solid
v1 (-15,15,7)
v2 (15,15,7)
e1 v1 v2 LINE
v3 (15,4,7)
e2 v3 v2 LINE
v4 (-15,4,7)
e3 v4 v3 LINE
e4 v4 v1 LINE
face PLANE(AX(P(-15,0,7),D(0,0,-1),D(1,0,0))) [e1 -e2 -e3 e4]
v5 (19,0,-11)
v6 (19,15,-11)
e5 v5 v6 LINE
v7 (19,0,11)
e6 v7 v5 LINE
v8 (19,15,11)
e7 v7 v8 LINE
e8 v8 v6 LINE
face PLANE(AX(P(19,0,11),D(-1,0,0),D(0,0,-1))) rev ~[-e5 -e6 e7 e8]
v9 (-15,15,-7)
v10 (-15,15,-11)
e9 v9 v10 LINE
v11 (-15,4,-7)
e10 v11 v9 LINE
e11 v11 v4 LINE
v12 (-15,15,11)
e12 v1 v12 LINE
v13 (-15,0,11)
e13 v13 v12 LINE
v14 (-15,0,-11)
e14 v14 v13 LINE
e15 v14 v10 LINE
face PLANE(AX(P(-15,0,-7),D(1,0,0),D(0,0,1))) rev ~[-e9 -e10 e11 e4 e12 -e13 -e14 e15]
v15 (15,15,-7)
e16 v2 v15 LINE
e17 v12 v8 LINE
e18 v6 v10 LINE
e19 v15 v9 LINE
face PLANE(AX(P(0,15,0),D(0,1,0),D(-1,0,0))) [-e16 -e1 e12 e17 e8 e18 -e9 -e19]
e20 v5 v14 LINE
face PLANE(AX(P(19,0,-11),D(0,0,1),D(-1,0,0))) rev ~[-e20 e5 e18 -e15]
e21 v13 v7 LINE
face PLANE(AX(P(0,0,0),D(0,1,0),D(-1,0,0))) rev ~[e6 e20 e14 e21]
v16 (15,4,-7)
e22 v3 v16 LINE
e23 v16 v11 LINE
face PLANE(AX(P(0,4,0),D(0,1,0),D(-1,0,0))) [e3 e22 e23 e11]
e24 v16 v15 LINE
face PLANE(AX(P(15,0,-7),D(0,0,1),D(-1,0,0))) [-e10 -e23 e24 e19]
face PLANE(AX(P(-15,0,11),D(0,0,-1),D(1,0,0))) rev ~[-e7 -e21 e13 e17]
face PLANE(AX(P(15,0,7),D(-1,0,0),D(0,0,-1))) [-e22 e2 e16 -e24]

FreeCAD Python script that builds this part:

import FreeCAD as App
import Part
import Sketcher

V = App.Vector
Q = App.Units.Quantity


def add_polygon(sketch, points):
    """Adds a closed chain of lines whose ends are joined by coincident constraints."""
    first, n = sketch.GeometryCount, len(points)
    for a, b in zip(points, points[1:] + points[:1]):
        sketch.addGeometry(Part.LineSegment(App.Vector(*a, 0), App.Vector(*b, 0)), False)
    for i in range(n):
        sketch.addConstraint(Sketcher.Constraint("Coincident", first + i, 2, first + (i + 1) % n, 1))

doc = App.newDocument("Part")
params = doc.addObject("Spreadsheet::Sheet", "Params")
for row, (alias, value) in enumerate([
    ("sketch1_width", "30 mm"),
    ("sketch1_height", "14 mm"),
    ("sketch1_height2", "4 mm"),
    ("pad1_length", "15 mm"),
    ("sketch2_width", "30 mm"),
    ("sketch2_height", "14 mm"),
    ("pad2_length", "4 mm"),
], start=1):
    params.set(f"A{row}", alias)
    params.set(f"B{row}", "=" + value)
    params.setAlias(f"B{row}", alias)

body = doc.addObject("PartDesign::Body", "Body")

# Sketch on XZ plane
sketch1 = body.newObject("Sketcher::SketchObject", "Sketch")
sketch1.AttachmentSupport = (doc.getObject("XZ_Plane"), [""])
sketch1.MapMode = "FlatFace"
add_polygon(sketch1, [(15, -7), (15, 7), (-15, 7), (-15, 11), (19, 11), (19, -11), (-15, -11), (-15, -7)])  # lines 0-7
sketch1.addConstraint([
    Sketcher.Constraint("Vertical", 0),
    Sketcher.Constraint("Horizontal", 1),
    Sketcher.Constraint("Vertical", 2),
    Sketcher.Constraint("Horizontal", 3),
    Sketcher.Constraint("Vertical", 4),
    Sketcher.Constraint("Horizontal", 5),
    Sketcher.Constraint("Vertical", 6),
    Sketcher.Constraint("Horizontal", 7),
    Sketcher.Constraint("Symmetric", 0, 2, 6, 2, -1, 1),
    Sketcher.Constraint("Symmetric", 2, 2, 5, 2, -1),
    Sketcher.Constraint("DistanceX", 1, 2, 1, 1, Q("30 mm")),
    Sketcher.Constraint("DistanceY", 0, 1, 0, 2, Q("14 mm")),
    Sketcher.Constraint("DistanceY", 2, 1, 2, 2, Q("4 mm")),
    Sketcher.Constraint("DistanceX", 0, 2, 3, 2, Q("4 mm")),
])
sketch1.setExpression("Constraints[18]", "Params.sketch1_width")
sketch1.setExpression("Constraints[19]", "Params.sketch1_height")
sketch1.setExpression("Constraints[20]", "Params.sketch1_height2")
pad1 = body.newObject("PartDesign::Pad", "Pad")
pad1.Profile = sketch1
pad1.setExpression("Length", "Params.pad1_length")
pad1.Reversed = True

# Sketch on XZ plane
sketch2 = body.newObject("Sketcher::SketchObject", "Sketch001")
sketch2.AttachmentSupport = (doc.getObject("XZ_Plane"), [""])
sketch2.MapMode = "FlatFace"
add_polygon(sketch2, [(-15, 7), (15, 7), (15, -7), (-15, -7)])  # lines 0-3
sketch2.addConstraint([
    Sketcher.Constraint("Horizontal", 0),
    Sketcher.Constraint("Vertical", 1),
    Sketcher.Constraint("Horizontal", 2),
    Sketcher.Constraint("Vertical", 3),
    Sketcher.Constraint("Symmetric", 0, 2, 2, 2, -1, 1),
    Sketcher.Constraint("DistanceX", 0, 1, 0, 2, Q("30 mm")),
    Sketcher.Constraint("DistanceY", 1, 2, 1, 1, Q("14 mm")),
])
sketch2.setExpression("Constraints[9]", "Params.sketch2_width")
sketch2.setExpression("Constraints[10]", "Params.sketch2_height")
pad2 = body.newObject("PartDesign::Pad", "Pad001")
pad2.Profile = sketch2
pad2.setExpression("Length", "Params.pad2_length")
pad2.Reversed = True

doc.recompute()
